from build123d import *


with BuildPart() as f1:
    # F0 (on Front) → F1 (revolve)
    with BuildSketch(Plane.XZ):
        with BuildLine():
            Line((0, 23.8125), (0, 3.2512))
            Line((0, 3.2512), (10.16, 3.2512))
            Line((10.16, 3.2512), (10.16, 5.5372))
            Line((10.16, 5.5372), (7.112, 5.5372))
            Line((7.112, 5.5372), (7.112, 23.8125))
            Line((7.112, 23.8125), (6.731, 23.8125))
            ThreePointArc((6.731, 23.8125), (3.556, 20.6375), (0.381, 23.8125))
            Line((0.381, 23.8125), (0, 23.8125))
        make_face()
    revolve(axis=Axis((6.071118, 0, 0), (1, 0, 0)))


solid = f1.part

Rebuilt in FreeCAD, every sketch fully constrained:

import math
import FreeCAD as App
import Part
import Sketcher
from FreeCAD import Vector
Q = App.Units.Quantity

doc = App.newDocument("Part")
body = doc.addObject("PartDesign::Body", "Body")

sketch1 = doc.addObject("Sketcher::SketchObject", "Sketch")
body.addObject(sketch1)
sketch1.AttachmentSupport = (doc.XZ_Plane, [""])
sketch1.MapMode = "FlatFace"
sketch1.addGeometry([
    Part.LineSegment(Vector(0, 23.81, 0), Vector(0, 3.25, 0)),
    Part.LineSegment(Vector(0, 3.25, 0), Vector(10.16, 3.25, 0)),
    Part.LineSegment(Vector(10.16, 3.25, 0), Vector(10.16, 5.54, 0)),
    Part.LineSegment(Vector(10.16, 5.54, 0), Vector(7.11, 5.54, 0)),
    Part.LineSegment(Vector(7.11, 5.54, 0), Vector(7.11, 23.81, 0)),
    Part.LineSegment(Vector(7.11, 23.81, 0), Vector(6.73, 23.81, 0)),
    Part.ArcOfCircle(Part.Circle(Vector(3.56, 23.81, 0), Vector(0, 0, 1), 3.17), math.radians(180), math.radians(360)),
    Part.LineSegment(Vector(0.38, 23.81, 0), Vector(0, 23.81, 0)),
], False)
sketch1.addConstraint([
    Sketcher.Constraint("Coincident", 0, 2, 1, 1),
    Sketcher.Constraint("Coincident", 1, 2, 2, 1),
    Sketcher.Constraint("Coincident", 2, 2, 3, 1),
    Sketcher.Constraint("Coincident", 3, 2, 4, 1),
    Sketcher.Constraint("Coincident", 4, 2, 5, 1),
    Sketcher.Constraint("Coincident", 5, 2, 6, 2),
    Sketcher.Constraint("Coincident", 6, 1, 7, 1),
    Sketcher.Constraint("Coincident", 7, 2, 0, 1),
    Sketcher.Constraint("Vertical", 0),
    Sketcher.Constraint("Horizontal", 1),
    Sketcher.Constraint("Vertical", 2),
    Sketcher.Constraint("Horizontal", 3),
    Sketcher.Constraint("Vertical", 4),
    Sketcher.Constraint("Horizontal", 5),
    Sketcher.Constraint("Horizontal", 7),
    Sketcher.Constraint("PointOnObject", 0, 2, -2),
    Sketcher.Constraint("Horizontal", 6, 3, 4, 2),
    Sketcher.Constraint("Horizontal", 5, 2, 6, 1),
    Sketcher.Constraint("Equal", 5, 7),
    Sketcher.Constraint("DistanceX", 1, 1, 1, 2, Q("0.4 in")),
    Sketcher.Constraint("Radius", 6, Q("0.125 in")),
    Sketcher.Constraint("DistanceX", 3, 2, 3, 1, Q("0.12 in")),
    Sketcher.Constraint("DistanceY", 2, 1, 2, 2, Q("0.09 in")),
    Sketcher.Constraint("DistanceY", 0, 2, 0, 1, Q("0.8095 in")),
    Sketcher.Constraint("DistanceY", -1, 1, 6, 3, Q("0.9375 in")),
])
revolution = doc.addObject("PartDesign::Revolution", "Revolution")
body.addObject(revolution)
revolution.Profile = sketch1
revolution.ReferenceAxis = (sketch1, ["H_Axis"])
revolution.Angle = 360

doc.recompute()
